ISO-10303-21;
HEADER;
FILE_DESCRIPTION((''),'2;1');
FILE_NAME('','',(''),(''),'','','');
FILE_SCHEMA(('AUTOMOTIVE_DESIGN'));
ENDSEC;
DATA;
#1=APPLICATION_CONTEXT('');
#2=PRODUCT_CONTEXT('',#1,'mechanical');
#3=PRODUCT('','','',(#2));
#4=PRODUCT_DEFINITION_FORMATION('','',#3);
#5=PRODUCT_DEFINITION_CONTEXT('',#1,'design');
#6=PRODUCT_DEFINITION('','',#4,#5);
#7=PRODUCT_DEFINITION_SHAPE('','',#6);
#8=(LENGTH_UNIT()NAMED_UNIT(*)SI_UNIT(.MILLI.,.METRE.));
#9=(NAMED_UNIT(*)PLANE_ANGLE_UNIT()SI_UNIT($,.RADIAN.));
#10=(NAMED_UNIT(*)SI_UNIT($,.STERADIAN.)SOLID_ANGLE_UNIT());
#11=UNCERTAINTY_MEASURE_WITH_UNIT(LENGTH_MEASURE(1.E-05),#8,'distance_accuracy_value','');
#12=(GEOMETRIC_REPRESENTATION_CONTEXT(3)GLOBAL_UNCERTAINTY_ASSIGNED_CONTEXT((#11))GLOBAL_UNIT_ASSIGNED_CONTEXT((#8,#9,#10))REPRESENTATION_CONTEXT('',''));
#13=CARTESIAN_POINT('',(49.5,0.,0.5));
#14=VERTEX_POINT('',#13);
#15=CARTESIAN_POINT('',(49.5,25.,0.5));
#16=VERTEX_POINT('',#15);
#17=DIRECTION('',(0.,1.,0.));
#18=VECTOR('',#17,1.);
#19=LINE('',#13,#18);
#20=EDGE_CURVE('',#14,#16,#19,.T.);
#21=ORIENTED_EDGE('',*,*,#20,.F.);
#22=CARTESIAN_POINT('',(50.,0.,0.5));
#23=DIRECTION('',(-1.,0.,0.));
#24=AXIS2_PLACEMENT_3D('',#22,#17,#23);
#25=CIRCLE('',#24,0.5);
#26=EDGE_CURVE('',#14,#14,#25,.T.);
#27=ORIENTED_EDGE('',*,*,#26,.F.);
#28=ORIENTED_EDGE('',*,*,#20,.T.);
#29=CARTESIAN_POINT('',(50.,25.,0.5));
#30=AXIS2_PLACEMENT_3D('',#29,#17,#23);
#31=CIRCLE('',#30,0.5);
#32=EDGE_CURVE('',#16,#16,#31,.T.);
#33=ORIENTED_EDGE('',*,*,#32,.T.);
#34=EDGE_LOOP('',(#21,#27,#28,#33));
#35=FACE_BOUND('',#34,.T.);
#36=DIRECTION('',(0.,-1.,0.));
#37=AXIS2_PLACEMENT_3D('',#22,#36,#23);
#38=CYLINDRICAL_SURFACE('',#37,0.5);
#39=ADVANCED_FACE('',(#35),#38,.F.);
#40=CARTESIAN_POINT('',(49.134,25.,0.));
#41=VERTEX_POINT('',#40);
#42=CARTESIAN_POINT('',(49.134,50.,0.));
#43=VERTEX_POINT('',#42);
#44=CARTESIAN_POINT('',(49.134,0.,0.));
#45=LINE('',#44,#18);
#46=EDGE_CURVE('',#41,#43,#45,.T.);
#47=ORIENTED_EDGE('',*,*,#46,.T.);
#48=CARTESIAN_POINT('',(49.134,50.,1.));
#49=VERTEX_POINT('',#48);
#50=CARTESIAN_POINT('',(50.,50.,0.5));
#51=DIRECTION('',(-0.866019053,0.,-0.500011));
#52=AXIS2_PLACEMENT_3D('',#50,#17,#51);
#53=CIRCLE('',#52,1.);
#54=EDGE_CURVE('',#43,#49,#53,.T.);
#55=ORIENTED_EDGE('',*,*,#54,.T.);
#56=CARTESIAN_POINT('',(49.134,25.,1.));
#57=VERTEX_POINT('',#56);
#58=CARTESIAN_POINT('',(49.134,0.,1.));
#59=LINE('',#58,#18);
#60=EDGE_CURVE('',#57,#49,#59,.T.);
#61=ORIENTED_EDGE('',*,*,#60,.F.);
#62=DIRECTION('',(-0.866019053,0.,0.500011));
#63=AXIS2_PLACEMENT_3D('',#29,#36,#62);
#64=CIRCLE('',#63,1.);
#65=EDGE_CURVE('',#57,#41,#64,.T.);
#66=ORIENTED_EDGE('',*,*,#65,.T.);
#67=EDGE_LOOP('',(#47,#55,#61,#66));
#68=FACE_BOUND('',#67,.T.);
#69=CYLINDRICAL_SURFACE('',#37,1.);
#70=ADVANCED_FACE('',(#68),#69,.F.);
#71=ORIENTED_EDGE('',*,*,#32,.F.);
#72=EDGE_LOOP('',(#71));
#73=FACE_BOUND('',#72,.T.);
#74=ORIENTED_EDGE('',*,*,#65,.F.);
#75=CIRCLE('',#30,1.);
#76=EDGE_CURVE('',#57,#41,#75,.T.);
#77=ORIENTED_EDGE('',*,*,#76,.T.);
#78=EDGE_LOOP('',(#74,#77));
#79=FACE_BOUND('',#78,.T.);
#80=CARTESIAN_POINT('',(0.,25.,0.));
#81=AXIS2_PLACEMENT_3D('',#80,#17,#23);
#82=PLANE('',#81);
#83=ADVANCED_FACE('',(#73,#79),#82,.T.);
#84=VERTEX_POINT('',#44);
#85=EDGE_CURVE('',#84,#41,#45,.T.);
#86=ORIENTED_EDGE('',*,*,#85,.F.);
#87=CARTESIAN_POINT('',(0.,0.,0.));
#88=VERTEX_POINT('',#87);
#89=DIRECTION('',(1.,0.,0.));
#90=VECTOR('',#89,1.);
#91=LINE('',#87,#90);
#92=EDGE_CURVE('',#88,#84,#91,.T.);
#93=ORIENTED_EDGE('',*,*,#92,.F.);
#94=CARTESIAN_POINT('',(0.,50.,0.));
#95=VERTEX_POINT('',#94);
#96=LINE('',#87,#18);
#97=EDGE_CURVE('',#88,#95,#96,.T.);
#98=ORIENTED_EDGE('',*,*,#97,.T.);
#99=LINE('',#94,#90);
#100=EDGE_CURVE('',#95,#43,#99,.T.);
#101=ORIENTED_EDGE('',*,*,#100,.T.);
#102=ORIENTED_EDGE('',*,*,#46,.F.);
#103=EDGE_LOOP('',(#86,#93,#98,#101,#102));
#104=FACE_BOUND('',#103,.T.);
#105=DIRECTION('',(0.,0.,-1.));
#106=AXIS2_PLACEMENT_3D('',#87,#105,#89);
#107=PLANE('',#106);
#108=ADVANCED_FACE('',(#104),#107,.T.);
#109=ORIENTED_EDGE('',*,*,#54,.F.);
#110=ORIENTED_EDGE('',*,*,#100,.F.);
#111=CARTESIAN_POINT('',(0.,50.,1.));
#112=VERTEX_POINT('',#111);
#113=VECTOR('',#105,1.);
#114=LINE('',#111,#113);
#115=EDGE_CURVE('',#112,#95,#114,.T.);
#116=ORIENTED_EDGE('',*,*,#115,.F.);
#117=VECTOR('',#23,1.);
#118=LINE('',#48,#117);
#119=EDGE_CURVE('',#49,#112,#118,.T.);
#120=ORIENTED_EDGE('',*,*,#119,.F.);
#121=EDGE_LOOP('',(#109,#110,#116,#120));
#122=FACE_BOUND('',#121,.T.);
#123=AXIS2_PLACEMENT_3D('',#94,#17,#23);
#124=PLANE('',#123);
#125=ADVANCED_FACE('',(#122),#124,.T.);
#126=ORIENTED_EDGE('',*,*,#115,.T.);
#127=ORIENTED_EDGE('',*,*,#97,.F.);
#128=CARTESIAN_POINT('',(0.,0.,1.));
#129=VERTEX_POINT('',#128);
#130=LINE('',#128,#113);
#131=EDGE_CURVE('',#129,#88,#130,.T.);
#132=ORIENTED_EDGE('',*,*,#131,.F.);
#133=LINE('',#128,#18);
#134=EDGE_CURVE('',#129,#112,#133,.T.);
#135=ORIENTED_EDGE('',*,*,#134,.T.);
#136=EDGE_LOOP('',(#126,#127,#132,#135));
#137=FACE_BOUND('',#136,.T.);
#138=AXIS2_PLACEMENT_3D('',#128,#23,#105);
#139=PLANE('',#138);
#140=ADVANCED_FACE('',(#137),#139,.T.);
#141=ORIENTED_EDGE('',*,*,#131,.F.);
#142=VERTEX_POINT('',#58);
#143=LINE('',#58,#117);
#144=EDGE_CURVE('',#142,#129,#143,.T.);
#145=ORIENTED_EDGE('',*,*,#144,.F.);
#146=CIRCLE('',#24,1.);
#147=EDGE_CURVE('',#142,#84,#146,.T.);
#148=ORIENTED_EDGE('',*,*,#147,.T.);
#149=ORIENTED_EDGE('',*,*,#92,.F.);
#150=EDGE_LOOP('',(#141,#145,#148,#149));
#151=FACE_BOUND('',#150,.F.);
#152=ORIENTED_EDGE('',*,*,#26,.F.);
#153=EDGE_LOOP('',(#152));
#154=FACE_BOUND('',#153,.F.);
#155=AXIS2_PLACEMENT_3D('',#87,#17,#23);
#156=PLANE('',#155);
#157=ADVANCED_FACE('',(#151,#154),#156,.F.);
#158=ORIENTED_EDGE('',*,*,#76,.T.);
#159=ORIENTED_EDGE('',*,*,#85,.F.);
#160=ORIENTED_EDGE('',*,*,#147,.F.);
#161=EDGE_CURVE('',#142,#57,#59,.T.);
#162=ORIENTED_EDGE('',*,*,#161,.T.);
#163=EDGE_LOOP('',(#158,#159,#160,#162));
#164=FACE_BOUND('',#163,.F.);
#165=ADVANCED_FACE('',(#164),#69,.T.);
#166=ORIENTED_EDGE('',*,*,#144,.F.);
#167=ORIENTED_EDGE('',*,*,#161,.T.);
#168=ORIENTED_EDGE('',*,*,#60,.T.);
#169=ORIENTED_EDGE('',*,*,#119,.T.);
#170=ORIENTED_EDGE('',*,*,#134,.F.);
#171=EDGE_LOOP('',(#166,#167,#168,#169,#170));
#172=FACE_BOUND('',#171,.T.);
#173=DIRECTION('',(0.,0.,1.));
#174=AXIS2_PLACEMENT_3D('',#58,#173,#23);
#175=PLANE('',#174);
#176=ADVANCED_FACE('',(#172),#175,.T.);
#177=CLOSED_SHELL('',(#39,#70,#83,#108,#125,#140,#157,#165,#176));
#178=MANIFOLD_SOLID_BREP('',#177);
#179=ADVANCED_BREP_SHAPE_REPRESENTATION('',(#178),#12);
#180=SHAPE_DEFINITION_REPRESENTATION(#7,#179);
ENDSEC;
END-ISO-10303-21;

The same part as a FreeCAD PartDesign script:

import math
import FreeCAD as App
import Part
import Sketcher

V = App.Vector

doc = App.newDocument("Part")
body = doc.addObject("PartDesign::Body", "Body")

sketch1 = doc.addObject("Sketcher::SketchObject", "Sketch")
body.addObject(sketch1)
sketch1.AttachmentSupport = (doc.XZ_Plane, [""])
sketch1.MapMode = "FlatFace"
sketch1.addGeometry([
    Part.LineSegment(V(49.134, 0, 0), V(0, 0, 0)),
    Part.LineSegment(V(0, 0, 0), V(0, 1, 0)),
    Part.LineSegment(V(0, 1, 0), V(49.134, 1, 0)),
    Part.ArcOfCircle(Part.Circle(V(50, 0.5, 0), V(0, 0, 1), 1), math.radians(149.999272), math.radians(210.000728)),
], False)
sketch1.addConstraint([
    Sketcher.Constraint("Coincident", 0, 2, 1, 1),
    Sketcher.Constraint("Coincident", 1, 2, 2, 1),
    Sketcher.Constraint("Coincident", 2, 2, 3, 1),
    Sketcher.Constraint("Coincident", 3, 2, 0, 1),
    Sketcher.Constraint("Horizontal", 0),
    Sketcher.Constraint("Vertical", 1),
    Sketcher.Constraint("Horizontal", 2),
    Sketcher.Constraint("Coincident", 0, 2, -1, 1),
    Sketcher.Constraint("Vertical", 2, 2, 3, 2),
    Sketcher.Constraint("Radius", 3, 1.0),
    Sketcher.Constraint("DistanceY", 1, 1, 1, 2, 1.0),
    Sketcher.Constraint("DistanceX", 0, 2, 0, 1, 49.134),
])
pad1 = doc.addObject("PartDesign::Pad", "Pad")
body.addObject(pad1)
pad1.Profile = sketch1
pad1.Length = 50
pad1.Reversed = True

sketch2 = doc.addObject("Sketcher::SketchObject", "Sketch001")
body.addObject(sketch2)
sketch2.AttachmentSupport = (doc.XZ_Plane, [""])
sketch2.MapMode = "FlatFace"
sketch2.addGeometry([
    Part.Circle(V(50, 0.5, 0), V(0, 0, 1), 1),
    Part.Circle(V(50, 0.5, 0), V(0, 0, 1), 0.5),
], False)
sketch2.addConstraint([
    Sketcher.Constraint("Coincident", 1, 3, 0, 3),
    Sketcher.Constraint("Diameter", 0, 2.0),
    Sketcher.Constraint("Diameter", 1, 1.0),
    Sketcher.Constraint("DistanceX", -1, 1, 0, 3, 50.0),
    Sketcher.Constraint("DistanceY", -1, 1, 0, 3, 0.5),
])
pad2 = doc.addObject("PartDesign::Pad", "Pad001")
body.addObject(pad2)
pad2.Profile = sketch2
pad2.Length = 25
pad2.Reversed = True

doc.recompute()
